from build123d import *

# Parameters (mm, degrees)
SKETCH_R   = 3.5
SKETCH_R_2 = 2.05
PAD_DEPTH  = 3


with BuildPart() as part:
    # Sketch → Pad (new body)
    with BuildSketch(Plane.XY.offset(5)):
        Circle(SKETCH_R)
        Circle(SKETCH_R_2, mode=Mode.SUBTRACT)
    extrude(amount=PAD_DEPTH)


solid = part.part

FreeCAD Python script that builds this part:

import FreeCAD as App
import Part
import Sketcher
Q = App.Units.Quantity

doc = App.newDocument("Part")
body = doc.addObject("PartDesign::Body", "Body")

# Sketch on XY plane
sketch1 = doc.addObject("Sketcher::SketchObject", "Sketch")
body.addObject(sketch1)
sketch1.AttachmentSupport = (doc.XY_Plane, [""])
sketch1.MapMode = "FlatFace"
sketch1.AttachmentOffset = App.Placement(App.Vector(0, 0, 5), App.Rotation())
sketch1.addGeometry(Part.Circle(App.Vector(0, 0, 0), App.Vector(0, 0, 1), 3.5), False)
sketch1.addGeometry(Part.Circle(App.Vector(0, 0, 0), App.Vector(0, 0, 1), 2), False)
sketch1.addConstraint(Sketcher.Constraint("Coincident", 0, 3, -1, 1))
sketch1.addConstraint(Sketcher.Constraint("Coincident", 1, 3, -1, 1))
sketch1.addConstraint(Sketcher.Constraint("Diameter", 0, Q("7 mm")))
sketch1.addConstraint(Sketcher.Constraint("Diameter", 1, Q("4.1 mm")))
pad1 = doc.addObject("PartDesign::Pad", "Pad")
body.addObject(pad1)
pad1.Profile = sketch1
pad1.Length = 3

doc.recompute()
